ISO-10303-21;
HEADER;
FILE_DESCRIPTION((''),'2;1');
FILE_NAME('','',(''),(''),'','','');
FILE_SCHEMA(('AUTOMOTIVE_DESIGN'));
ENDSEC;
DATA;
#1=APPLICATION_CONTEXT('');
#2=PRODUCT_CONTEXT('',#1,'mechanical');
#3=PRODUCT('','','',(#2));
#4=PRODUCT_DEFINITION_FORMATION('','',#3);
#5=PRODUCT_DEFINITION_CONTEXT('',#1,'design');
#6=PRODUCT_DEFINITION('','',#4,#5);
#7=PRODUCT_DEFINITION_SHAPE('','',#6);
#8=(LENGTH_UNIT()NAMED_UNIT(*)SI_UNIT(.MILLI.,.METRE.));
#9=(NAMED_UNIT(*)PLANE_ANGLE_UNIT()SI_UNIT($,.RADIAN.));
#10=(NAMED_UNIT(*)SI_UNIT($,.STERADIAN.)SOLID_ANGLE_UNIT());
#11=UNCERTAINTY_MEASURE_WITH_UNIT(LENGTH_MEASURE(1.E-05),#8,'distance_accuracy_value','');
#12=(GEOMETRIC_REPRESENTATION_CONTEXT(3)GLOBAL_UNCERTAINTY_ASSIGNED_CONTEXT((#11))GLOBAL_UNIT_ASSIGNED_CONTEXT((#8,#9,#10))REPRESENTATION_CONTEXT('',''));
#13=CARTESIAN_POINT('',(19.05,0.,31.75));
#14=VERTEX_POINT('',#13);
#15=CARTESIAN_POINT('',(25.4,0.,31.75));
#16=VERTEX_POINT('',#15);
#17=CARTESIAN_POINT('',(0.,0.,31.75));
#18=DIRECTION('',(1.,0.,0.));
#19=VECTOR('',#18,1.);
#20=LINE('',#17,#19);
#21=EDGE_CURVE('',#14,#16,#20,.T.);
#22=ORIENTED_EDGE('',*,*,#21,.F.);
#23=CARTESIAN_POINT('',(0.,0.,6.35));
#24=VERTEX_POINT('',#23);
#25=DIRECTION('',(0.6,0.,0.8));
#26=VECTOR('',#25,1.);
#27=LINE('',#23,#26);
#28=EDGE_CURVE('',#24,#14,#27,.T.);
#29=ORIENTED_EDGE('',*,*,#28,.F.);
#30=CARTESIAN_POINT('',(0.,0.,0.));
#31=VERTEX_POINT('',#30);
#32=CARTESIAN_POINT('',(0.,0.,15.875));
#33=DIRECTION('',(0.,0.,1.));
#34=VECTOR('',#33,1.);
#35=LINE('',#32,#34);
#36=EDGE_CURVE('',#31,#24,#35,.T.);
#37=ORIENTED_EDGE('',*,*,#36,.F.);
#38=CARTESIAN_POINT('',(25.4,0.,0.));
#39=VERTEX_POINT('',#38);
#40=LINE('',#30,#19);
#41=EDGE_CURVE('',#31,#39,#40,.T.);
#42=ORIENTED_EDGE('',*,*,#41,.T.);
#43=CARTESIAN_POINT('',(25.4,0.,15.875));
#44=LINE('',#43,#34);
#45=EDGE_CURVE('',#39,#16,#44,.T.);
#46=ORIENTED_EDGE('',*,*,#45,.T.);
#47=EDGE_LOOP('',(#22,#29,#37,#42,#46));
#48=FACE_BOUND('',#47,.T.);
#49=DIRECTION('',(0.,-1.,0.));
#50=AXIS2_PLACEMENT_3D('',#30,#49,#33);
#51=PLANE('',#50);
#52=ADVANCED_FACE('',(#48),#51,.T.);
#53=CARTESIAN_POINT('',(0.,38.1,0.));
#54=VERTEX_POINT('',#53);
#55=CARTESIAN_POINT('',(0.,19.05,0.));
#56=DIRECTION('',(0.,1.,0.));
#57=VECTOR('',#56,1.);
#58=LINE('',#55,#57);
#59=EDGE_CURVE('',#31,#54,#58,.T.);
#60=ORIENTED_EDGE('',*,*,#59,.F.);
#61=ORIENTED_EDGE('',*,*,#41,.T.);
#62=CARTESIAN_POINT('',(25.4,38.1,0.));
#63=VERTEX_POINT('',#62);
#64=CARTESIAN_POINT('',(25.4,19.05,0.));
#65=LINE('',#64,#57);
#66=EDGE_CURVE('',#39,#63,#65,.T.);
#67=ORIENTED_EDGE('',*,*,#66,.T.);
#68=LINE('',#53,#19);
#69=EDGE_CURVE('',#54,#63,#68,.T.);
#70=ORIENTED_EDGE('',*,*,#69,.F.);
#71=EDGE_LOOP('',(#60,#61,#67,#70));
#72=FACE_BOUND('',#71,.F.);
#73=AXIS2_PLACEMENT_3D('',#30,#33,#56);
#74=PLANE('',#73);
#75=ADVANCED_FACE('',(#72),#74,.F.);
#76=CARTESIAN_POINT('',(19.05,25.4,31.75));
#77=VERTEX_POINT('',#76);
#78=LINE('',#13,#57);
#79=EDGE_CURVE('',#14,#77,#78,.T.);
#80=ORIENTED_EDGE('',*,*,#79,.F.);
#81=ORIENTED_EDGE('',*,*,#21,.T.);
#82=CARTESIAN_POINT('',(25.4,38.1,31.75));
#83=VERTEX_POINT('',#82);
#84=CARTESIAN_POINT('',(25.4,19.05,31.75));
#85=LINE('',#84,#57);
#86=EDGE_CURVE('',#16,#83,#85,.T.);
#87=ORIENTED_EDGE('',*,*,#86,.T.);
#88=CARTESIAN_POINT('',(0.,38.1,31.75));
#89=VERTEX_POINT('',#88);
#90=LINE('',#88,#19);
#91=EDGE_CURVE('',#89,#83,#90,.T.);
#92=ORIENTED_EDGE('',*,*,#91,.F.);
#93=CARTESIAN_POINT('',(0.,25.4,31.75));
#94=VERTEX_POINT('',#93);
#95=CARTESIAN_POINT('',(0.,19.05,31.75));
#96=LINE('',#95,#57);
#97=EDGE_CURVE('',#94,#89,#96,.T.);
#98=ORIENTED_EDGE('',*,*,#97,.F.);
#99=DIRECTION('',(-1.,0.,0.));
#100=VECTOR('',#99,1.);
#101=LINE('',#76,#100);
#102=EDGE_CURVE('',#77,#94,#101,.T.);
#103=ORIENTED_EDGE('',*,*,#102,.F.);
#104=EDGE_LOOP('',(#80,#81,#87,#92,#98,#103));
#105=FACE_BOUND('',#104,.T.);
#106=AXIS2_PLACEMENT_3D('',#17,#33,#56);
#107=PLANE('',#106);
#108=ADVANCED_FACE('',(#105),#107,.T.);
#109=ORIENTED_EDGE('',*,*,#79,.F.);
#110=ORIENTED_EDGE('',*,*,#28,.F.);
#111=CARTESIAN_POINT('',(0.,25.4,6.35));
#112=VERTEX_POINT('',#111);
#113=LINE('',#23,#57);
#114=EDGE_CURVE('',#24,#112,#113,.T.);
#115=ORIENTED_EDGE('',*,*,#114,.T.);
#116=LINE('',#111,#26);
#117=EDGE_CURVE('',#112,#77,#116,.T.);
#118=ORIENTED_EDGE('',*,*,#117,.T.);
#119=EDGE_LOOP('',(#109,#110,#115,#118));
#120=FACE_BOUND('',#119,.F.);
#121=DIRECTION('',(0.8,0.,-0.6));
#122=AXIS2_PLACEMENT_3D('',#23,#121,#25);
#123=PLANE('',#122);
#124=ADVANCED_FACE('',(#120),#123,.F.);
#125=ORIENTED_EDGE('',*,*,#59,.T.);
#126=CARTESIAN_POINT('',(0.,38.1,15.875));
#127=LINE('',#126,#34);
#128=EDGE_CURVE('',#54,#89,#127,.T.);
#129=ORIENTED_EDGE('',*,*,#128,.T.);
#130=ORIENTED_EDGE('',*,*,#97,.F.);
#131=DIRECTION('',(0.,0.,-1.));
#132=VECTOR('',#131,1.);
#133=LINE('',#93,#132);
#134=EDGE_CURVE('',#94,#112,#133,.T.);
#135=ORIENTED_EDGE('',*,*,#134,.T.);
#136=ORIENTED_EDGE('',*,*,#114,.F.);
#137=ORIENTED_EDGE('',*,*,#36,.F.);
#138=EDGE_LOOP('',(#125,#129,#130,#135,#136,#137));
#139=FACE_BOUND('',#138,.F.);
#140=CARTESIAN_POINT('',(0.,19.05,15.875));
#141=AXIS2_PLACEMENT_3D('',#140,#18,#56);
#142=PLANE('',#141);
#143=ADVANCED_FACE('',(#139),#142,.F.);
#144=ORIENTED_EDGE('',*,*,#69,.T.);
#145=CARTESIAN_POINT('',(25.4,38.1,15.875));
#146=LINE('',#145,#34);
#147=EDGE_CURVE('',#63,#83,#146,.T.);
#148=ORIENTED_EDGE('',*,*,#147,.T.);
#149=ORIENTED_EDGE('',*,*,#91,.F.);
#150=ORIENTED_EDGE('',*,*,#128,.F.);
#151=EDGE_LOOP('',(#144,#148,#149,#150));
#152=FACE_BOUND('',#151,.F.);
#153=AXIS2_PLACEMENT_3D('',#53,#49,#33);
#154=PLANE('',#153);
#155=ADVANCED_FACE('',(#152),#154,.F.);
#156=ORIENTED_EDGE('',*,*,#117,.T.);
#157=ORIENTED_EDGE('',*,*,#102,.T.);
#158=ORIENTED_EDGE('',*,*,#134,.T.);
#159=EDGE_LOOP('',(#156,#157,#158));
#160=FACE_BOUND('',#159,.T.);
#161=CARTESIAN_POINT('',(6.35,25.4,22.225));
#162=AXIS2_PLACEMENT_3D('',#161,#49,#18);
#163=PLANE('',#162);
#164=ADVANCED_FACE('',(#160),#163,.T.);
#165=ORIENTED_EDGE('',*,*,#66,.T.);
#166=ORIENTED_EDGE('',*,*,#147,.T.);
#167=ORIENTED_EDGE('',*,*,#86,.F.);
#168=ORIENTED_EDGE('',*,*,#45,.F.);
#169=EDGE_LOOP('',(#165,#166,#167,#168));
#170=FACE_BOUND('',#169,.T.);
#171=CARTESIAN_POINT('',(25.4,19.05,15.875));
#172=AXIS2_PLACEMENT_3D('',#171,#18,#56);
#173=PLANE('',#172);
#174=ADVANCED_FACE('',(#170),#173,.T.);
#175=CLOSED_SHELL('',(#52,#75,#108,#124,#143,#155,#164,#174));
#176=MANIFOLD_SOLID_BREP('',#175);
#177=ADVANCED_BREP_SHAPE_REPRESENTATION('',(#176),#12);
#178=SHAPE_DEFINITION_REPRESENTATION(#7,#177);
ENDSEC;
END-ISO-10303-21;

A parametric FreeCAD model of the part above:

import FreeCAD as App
import Part
import Sketcher

V = App.Vector
Q = App.Units.Quantity

doc = App.newDocument("Part")
body = doc.addObject("PartDesign::Body", "Body")

# Sketch on YZ plane
sketch1 = body.newObject("Sketcher::SketchObject", "Sketch")
sketch1.AttachmentSupport = (doc.getObject("YZ_Plane"), [""])
sketch1.MapMode = "FlatFace"
sketch1.addGeometry([
    Part.LineSegment(V(0, 32, 0), V(0, 0, 0)),
    Part.LineSegment(V(0, 0, 0), V(38, 0, 0)),
    Part.LineSegment(V(38, 0, 0), V(38, 32, 0)),
    Part.LineSegment(V(38, 32, 0), V(0, 32, 0)),
], False)
sketch1.addConstraint([
    Sketcher.Constraint("Coincident", 0, 2, 1, 1),
    Sketcher.Constraint("Coincident", 1, 2, 2, 1),
    Sketcher.Constraint("Coincident", 2, 2, 3, 1),
    Sketcher.Constraint("Coincident", 3, 2, 0, 1),
    Sketcher.Constraint("Vertical", 0),
    Sketcher.Constraint("Horizontal", 1),
    Sketcher.Constraint("Vertical", 2),
    Sketcher.Constraint("Horizontal", 3),
    Sketcher.Constraint("Coincident", 0, 2, -1, 1),
    Sketcher.Constraint("DistanceX", 1, 1, 1, 2, Q("1.5 in")),
    Sketcher.Constraint("DistanceY", 0, 2, 0, 1, Q("1.25 in")),
])
pad1 = body.newObject("PartDesign::Pad", "Pad")
pad1.Profile = sketch1
pad1.Length = Q("1 in")

# Sketch on YZ plane
sketch2 = body.newObject("Sketcher::SketchObject", "Sketch001")
sketch2.AttachmentSupport = (doc.getObject("YZ_Plane"), [""])
sketch2.MapMode = "FlatFace"
sketch2.addGeometry([
    Part.LineSegment(V(21, 30, 0), V(8, 30, 0)),
    Part.LineSegment(V(8, 30, 0), V(8, 9, 0)),
    Part.LineSegment(V(8, 9, 0), V(21, 30, 0)),
], False)
sketch2.addConstraint([
    Sketcher.Constraint("Coincident", 0, 2, 1, 1),
    Sketcher.Constraint("Coincident", 1, 2, 2, 1),
    Sketcher.Constraint("Coincident", 2, 2, 0, 1),
    Sketcher.Constraint("Horizontal", 0),
    Sketcher.Constraint("Vertical", 1),
    Sketcher.Constraint("DistanceX", 0, 2, 0, 1, Q("12.999688 mm")),
    Sketcher.Constraint("DistanceY", 1, 2, 1, 1, Q("21.356635 mm")),
    Sketcher.Constraint("DistanceX", -1, 1, 0, 2, Q("8.047429 mm")),
    Sketcher.Constraint("DistanceY", -1, 1, 0, 2, Q("30.48737 mm")),
])
pad2 = body.newObject("PartDesign::Pad", "Pad001")
pad2.Profile = sketch2
pad2.Length = Q("0.62 in")

# Sketch on XZ plane
sketch3 = body.newObject("Sketcher::SketchObject", "Sketch002")
sketch3.AttachmentSupport = (doc.getObject("XZ_Plane"), [""])
sketch3.MapMode = "FlatFace"
sketch3.addGeometry([
    Part.LineSegment(V(0, 6, 0), V(19, 32, 0)),
    Part.LineSegment(V(19, 32, 0), V(0, 32, 0)),
    Part.LineSegment(V(0, 32, 0), V(0, 6, 0)),
], False)
sketch3.addConstraint([
    Sketcher.Constraint("Coincident", 0, 2, 1, 1),
    Sketcher.Constraint("Coincident", 1, 2, 2, 1),
    Sketcher.Constraint("Coincident", 2, 2, 0, 1),
    Sketcher.Constraint("Horizontal", 1),
    Sketcher.Constraint("Vertical", 2),
    Sketcher.Constraint("PointOnObject", 1, 2, -2),
    Sketcher.Constraint("DistanceY", 2, 2, 2, 1, Q("1 in")),
    Sketcher.Constraint("DistanceX", 1, 2, 1, 1, Q("0.75 in")),
    Sketcher.Constraint("DistanceY", -1, 1, 0, 2, Q("1.25 in")),
])
pocket1 = body.newObject("PartDesign::Pocket", "Pocket")
pocket1.Profile = sketch3
pocket1.Length = Q("1 in")

doc.recompute()
